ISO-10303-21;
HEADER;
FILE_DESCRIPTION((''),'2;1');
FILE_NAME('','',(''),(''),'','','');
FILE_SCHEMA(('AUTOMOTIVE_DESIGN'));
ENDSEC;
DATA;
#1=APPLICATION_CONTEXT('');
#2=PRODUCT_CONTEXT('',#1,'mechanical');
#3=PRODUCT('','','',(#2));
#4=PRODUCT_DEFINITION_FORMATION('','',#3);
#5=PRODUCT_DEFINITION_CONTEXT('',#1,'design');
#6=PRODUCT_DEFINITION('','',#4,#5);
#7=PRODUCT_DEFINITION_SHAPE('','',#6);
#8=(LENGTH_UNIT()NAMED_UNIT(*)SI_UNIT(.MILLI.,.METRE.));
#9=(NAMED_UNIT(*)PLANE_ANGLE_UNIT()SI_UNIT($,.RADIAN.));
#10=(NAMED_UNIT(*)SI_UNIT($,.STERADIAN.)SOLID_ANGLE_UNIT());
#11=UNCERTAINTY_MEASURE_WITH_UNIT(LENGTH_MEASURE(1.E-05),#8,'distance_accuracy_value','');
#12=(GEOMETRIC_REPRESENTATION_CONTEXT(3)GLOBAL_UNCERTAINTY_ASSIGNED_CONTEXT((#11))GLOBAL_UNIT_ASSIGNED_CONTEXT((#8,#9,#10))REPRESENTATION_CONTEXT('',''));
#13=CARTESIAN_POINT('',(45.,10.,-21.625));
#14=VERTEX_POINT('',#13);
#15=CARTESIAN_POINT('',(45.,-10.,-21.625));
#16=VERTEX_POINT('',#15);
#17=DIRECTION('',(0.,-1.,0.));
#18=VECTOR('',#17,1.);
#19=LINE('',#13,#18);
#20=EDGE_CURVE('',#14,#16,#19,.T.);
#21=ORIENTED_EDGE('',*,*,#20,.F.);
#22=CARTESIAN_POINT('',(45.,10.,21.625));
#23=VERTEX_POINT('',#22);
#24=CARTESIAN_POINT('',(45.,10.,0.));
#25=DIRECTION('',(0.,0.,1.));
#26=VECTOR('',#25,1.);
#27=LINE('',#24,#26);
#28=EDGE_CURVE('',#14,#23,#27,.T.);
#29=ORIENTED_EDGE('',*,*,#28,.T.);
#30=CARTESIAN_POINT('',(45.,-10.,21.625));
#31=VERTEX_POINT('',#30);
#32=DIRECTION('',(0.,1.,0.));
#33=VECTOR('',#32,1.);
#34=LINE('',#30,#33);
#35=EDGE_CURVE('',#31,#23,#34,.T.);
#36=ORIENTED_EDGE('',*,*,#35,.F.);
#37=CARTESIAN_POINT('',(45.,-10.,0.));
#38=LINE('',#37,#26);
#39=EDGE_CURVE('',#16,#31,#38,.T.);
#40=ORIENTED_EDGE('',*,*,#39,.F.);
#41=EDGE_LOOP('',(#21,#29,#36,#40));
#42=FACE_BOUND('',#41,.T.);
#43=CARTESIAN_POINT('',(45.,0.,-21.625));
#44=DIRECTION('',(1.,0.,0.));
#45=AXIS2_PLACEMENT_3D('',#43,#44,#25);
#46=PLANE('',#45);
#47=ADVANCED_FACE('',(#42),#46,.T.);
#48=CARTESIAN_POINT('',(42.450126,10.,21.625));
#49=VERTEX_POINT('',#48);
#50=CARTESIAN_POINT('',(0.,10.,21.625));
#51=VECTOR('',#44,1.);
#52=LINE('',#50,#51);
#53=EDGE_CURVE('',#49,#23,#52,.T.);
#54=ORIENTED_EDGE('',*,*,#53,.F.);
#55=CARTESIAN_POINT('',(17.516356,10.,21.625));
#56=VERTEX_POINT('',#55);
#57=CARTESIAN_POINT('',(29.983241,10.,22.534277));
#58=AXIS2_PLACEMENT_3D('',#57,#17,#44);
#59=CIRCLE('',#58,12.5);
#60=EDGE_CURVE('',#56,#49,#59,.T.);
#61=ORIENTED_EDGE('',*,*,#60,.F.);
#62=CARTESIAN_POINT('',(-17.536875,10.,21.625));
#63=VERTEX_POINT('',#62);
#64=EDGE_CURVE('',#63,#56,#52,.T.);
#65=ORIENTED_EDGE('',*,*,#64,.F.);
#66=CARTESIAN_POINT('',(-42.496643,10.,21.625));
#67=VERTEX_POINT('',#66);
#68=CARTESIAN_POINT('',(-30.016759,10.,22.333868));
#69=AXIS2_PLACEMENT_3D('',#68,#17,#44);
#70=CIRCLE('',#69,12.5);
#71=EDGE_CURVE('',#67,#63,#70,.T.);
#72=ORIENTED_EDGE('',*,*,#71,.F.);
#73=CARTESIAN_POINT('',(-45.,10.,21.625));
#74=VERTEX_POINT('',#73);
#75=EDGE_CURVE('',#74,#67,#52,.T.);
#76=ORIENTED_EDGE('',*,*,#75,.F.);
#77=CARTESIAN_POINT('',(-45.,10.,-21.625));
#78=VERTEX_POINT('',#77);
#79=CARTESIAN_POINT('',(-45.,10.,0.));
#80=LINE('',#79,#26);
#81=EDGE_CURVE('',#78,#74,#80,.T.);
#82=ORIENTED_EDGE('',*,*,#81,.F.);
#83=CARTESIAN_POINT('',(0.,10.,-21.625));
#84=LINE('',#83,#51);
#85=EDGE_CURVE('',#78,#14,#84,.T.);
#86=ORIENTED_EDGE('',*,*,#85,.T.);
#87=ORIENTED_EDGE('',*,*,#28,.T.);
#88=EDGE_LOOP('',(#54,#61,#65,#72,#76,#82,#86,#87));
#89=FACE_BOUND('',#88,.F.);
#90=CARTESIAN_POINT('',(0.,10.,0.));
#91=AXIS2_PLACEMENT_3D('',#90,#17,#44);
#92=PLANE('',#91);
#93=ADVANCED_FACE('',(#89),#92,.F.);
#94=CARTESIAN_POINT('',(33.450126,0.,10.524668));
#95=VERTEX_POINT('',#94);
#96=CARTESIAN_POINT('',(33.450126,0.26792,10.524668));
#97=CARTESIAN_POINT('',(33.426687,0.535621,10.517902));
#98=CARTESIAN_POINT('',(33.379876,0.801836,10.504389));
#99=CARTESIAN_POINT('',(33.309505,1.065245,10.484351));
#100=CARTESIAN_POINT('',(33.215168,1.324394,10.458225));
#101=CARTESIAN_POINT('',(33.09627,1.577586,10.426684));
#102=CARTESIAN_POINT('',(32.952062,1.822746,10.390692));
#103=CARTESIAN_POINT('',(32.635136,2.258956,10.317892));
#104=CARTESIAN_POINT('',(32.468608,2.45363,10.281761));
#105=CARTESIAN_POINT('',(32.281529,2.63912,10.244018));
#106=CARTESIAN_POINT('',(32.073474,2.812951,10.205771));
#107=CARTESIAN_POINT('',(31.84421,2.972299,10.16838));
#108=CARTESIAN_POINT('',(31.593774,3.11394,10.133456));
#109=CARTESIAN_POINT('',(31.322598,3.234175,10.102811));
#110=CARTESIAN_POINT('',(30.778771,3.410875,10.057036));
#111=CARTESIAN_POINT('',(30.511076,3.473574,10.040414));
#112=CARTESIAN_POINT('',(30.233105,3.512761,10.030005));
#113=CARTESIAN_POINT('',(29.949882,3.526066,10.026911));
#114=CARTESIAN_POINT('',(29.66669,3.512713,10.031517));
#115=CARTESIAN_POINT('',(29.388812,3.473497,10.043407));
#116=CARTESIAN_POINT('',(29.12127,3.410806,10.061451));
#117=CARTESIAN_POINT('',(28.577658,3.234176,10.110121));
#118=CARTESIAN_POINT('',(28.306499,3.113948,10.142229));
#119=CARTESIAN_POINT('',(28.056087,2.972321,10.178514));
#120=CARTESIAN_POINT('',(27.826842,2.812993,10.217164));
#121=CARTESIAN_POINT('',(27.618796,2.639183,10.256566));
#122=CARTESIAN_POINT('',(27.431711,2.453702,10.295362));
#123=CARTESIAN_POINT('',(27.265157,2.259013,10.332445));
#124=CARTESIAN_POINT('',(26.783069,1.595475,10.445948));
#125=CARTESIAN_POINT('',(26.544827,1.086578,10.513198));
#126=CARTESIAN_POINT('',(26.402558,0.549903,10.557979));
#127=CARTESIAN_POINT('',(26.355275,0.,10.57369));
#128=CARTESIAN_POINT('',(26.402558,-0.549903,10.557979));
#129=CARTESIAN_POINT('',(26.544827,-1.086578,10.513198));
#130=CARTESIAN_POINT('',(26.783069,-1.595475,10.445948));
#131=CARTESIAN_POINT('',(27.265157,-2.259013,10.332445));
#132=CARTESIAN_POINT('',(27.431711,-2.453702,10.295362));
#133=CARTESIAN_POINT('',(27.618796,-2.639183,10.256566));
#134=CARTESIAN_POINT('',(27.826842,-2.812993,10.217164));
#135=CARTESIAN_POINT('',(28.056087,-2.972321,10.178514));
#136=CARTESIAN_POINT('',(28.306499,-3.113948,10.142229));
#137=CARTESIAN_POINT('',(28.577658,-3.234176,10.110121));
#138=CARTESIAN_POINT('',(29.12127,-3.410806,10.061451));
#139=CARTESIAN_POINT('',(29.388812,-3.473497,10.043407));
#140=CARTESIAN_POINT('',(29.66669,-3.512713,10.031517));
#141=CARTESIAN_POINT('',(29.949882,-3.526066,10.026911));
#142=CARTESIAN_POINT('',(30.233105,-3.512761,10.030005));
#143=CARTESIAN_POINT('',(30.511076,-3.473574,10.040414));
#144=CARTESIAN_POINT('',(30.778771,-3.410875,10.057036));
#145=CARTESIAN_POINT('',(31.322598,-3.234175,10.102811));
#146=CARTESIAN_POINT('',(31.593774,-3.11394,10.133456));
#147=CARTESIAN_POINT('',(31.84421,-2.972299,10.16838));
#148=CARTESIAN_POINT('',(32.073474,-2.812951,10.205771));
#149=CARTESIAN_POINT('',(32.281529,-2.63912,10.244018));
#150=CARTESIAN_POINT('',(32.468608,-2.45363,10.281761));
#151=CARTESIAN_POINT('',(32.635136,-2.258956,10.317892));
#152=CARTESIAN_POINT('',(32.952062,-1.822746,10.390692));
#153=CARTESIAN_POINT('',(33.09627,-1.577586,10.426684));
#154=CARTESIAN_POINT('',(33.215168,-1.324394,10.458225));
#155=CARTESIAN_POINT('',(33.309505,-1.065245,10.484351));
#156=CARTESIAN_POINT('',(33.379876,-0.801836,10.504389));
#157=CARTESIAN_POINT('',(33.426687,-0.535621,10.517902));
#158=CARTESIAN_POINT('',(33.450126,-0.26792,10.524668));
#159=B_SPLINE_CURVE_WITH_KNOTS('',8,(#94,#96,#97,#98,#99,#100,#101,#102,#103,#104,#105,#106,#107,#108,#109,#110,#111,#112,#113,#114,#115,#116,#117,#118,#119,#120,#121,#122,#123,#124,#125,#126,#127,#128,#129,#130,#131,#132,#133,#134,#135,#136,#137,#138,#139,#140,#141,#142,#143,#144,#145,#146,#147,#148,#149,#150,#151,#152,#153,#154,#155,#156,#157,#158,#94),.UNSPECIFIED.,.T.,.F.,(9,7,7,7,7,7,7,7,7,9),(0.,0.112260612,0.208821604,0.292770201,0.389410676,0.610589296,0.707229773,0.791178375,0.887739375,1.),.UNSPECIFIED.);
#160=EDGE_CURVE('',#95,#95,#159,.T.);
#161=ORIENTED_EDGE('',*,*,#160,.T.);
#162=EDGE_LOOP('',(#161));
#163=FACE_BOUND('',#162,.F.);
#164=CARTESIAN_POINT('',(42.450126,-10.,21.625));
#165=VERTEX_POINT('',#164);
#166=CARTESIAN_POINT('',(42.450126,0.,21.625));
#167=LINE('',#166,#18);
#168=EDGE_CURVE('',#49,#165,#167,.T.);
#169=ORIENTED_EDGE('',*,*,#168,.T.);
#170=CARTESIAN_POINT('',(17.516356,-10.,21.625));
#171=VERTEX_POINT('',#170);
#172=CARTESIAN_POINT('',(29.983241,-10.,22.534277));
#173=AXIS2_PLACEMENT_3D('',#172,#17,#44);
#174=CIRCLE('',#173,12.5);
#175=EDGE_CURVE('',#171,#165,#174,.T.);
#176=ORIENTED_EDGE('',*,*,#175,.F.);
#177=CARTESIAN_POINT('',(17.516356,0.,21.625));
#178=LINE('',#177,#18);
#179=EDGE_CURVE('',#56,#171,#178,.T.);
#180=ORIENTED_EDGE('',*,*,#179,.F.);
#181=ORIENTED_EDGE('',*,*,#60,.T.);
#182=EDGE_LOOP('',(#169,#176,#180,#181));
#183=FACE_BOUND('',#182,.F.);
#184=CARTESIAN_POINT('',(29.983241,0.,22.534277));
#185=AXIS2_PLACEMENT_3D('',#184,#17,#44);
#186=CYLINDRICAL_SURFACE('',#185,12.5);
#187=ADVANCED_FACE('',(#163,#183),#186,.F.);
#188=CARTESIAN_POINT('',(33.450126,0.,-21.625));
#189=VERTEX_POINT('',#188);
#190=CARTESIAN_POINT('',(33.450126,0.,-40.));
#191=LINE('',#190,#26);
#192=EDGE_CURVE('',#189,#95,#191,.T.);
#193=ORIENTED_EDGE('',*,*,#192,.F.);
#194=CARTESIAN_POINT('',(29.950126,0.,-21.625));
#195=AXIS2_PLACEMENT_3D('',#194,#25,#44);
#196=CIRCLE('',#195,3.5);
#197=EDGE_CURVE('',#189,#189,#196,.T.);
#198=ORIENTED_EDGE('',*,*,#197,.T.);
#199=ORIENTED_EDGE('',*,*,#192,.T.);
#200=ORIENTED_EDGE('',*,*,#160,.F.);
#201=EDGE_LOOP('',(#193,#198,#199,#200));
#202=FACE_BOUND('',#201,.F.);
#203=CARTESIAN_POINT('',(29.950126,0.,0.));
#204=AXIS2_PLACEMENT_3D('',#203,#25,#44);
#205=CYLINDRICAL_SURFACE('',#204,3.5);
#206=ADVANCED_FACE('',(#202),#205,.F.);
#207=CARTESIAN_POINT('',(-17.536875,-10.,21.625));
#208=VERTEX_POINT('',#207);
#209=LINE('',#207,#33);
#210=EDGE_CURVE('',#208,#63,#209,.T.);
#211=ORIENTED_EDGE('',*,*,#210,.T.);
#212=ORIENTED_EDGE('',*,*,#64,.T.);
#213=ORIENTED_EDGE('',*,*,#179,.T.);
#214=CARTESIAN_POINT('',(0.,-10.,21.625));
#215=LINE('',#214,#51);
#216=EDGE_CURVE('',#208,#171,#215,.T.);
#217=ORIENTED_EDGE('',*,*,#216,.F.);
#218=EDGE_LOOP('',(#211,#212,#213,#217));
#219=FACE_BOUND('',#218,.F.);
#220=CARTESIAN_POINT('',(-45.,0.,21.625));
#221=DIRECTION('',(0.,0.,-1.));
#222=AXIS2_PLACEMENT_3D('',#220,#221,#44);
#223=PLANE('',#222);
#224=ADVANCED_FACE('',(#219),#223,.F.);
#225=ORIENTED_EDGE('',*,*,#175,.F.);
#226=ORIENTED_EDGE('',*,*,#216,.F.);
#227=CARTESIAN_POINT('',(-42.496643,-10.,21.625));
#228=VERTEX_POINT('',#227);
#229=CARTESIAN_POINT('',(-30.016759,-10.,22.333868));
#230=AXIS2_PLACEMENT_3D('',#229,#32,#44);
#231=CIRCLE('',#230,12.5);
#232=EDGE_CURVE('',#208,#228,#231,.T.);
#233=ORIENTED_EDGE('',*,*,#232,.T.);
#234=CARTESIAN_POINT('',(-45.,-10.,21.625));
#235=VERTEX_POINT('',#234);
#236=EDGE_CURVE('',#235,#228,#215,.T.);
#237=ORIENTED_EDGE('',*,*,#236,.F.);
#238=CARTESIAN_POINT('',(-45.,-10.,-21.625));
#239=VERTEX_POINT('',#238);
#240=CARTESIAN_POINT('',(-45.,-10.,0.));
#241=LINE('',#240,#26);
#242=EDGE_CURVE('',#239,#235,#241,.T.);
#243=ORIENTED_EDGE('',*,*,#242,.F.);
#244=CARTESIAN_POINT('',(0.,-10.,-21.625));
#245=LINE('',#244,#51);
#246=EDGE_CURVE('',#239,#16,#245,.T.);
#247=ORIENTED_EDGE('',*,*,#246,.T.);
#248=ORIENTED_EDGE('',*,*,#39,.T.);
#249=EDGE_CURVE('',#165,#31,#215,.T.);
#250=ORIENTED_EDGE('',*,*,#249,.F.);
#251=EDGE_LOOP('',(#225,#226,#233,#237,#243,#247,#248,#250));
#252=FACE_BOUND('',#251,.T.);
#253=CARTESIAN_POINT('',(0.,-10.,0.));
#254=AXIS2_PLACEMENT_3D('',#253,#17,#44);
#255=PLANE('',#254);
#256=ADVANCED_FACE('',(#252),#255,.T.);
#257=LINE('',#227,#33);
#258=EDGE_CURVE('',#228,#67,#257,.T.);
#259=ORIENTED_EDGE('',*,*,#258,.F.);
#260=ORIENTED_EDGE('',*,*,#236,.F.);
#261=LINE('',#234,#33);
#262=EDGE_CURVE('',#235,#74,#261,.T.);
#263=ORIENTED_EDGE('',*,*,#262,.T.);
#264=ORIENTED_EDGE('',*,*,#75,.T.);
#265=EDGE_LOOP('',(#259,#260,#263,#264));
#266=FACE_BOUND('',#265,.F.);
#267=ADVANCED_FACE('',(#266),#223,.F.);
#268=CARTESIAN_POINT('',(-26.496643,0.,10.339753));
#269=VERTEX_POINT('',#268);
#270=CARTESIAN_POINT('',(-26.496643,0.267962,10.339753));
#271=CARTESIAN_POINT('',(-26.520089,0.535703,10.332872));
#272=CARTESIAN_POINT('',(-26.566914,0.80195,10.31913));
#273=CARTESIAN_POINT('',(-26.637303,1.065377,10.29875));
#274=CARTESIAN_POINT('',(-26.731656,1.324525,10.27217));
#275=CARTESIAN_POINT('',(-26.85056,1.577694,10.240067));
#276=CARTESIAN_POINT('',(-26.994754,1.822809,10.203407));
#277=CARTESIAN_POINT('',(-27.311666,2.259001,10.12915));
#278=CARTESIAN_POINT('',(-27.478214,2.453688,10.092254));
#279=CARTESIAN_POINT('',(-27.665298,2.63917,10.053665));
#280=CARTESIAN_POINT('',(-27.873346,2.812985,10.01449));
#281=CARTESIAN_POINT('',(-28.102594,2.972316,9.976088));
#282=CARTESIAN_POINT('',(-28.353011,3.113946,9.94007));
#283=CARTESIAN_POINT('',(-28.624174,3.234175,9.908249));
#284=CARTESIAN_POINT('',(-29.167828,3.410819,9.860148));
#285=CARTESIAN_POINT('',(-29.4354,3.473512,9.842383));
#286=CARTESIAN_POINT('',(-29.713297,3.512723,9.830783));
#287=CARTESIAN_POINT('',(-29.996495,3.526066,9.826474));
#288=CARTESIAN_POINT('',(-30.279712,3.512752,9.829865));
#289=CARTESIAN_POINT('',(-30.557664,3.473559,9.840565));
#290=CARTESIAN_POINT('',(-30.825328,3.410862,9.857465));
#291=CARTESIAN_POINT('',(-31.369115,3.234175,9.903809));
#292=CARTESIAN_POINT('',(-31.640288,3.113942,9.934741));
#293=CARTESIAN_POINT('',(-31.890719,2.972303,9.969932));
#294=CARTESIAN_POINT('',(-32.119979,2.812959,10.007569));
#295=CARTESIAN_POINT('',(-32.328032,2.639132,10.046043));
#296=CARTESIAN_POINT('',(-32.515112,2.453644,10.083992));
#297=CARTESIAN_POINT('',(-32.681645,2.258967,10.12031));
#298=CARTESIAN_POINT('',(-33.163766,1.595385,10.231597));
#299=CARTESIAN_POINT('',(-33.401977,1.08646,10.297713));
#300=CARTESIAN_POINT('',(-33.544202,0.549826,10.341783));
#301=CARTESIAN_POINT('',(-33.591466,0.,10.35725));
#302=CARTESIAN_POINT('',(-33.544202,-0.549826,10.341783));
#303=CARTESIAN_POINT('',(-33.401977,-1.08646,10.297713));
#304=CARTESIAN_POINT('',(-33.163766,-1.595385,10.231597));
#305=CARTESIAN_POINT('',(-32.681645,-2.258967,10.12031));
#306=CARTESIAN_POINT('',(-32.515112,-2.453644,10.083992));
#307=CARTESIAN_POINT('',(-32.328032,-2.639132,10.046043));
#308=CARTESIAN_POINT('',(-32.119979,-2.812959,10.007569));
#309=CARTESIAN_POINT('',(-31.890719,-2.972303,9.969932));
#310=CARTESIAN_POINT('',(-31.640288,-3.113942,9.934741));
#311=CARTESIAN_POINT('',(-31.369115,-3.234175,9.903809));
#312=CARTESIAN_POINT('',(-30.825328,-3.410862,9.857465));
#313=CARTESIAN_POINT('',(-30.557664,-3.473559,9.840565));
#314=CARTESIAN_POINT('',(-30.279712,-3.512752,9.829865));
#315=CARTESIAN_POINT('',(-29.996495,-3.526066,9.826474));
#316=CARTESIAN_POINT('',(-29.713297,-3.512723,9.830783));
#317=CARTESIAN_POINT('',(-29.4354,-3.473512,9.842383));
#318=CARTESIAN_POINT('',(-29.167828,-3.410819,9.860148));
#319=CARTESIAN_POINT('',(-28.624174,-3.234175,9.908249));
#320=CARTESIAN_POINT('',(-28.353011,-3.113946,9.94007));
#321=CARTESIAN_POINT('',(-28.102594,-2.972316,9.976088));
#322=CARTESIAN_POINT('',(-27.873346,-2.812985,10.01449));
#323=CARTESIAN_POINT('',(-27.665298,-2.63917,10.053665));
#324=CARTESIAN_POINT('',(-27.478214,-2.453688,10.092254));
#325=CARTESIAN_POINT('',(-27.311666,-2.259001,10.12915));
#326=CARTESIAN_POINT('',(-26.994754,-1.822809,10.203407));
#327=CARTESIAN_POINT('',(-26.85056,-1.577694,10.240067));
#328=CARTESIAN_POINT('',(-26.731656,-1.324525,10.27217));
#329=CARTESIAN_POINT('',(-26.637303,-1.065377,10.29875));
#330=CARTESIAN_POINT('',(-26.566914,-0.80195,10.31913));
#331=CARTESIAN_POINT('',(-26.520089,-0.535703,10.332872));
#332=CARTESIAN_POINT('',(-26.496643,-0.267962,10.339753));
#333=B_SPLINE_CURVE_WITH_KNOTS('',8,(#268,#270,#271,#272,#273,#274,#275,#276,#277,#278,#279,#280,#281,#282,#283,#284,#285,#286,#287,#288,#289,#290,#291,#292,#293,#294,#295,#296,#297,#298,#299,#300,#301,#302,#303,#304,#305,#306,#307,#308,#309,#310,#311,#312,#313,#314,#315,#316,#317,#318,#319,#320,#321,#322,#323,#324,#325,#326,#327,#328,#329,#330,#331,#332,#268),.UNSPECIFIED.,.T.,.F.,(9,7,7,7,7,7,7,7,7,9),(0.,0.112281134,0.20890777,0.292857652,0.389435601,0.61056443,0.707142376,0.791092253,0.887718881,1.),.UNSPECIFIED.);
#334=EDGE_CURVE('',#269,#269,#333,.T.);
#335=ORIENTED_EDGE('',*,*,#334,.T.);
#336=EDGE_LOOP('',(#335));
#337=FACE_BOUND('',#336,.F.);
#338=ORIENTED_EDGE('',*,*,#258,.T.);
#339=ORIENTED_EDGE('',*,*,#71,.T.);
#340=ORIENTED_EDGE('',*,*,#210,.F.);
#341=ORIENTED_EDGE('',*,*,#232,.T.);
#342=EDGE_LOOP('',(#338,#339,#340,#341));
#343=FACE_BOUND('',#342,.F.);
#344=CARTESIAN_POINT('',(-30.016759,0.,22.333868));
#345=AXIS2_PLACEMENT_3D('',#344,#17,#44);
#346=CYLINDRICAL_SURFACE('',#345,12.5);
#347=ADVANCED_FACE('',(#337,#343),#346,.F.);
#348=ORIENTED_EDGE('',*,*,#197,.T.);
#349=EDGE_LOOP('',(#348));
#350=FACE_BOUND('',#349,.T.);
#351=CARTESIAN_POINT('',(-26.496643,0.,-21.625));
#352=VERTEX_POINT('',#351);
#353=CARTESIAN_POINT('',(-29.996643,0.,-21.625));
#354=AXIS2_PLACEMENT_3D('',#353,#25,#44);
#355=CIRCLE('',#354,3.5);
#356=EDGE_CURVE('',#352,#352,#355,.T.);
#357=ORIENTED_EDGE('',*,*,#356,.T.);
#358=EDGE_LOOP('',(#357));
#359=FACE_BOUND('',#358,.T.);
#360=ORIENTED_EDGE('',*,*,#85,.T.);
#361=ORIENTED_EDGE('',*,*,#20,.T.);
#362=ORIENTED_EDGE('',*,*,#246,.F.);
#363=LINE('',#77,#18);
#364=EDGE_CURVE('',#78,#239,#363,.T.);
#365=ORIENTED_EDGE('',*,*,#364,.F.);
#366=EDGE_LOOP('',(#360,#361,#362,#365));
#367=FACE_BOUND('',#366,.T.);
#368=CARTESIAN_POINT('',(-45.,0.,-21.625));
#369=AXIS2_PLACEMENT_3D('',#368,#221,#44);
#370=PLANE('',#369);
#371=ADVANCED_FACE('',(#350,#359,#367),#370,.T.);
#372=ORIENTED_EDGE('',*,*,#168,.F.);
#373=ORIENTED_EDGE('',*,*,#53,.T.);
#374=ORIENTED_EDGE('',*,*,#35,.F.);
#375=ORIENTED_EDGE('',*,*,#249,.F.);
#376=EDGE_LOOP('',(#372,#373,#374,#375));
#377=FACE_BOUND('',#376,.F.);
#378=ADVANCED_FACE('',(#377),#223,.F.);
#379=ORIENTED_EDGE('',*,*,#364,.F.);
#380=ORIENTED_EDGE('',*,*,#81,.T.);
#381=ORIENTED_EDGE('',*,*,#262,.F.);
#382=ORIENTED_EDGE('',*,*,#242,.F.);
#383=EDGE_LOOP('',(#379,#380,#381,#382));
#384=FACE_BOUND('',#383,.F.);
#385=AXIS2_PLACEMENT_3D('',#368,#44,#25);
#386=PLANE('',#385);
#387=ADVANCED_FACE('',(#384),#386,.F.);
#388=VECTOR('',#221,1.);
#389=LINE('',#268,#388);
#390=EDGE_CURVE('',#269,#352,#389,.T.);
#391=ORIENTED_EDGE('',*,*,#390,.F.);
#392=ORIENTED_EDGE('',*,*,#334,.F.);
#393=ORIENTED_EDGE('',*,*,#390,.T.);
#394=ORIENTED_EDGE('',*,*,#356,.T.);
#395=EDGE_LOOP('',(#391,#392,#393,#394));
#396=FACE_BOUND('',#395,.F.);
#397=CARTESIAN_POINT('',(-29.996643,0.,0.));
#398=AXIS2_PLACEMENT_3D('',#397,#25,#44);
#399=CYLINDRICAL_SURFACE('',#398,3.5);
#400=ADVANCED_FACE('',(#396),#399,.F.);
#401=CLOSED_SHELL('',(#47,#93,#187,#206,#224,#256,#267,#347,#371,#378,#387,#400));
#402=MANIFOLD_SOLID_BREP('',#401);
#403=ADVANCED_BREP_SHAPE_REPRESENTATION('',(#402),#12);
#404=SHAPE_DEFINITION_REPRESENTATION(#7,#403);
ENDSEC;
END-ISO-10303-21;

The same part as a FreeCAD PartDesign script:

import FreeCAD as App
import Part
import Sketcher

V = App.Vector

doc = App.newDocument("Part")
body = doc.addObject("PartDesign::Body", "Body")

# Sketch on XZ plane
sketch1 = body.newObject("Sketcher::SketchObject", "Sketch")
sketch1.AttachmentSupport = (doc.getObject("XZ_Plane"), [""])
sketch1.MapMode = "FlatFace"
sketch1.addGeometry([
    Part.LineSegment(V(-45, 21.625, 0), V(-45, -21.625, 0)),
    Part.LineSegment(V(-45, -21.625, 0), V(45, -21.625, 0)),
    Part.LineSegment(V(45, -21.625, 0), V(45, 21.625, 0)),
    Part.LineSegment(V(45, 21.625, 0), V(-45, 21.625, 0)),
], False)
sketch1.addConstraint([
    Sketcher.Constraint("Coincident", 0, 2, 1, 1),
    Sketcher.Constraint("Coincident", 1, 2, 2, 1),
    Sketcher.Constraint("Coincident", 2, 2, 3, 1),
    Sketcher.Constraint("Coincident", 3, 2, 0, 1),
    Sketcher.Constraint("Vertical", 0),
    Sketcher.Constraint("Horizontal", 1),
    Sketcher.Constraint("Vertical", 2),
    Sketcher.Constraint("Horizontal", 3),
    Sketcher.Constraint("Symmetric", 0, 2, 2, 2, -1, 1),
    Sketcher.Constraint("DistanceX", 1, 1, 1, 2, 90.0),
    Sketcher.Constraint("DistanceY", 0, 2, 0, 1, 43.25),
])
pad1 = body.newObject("PartDesign::Pad", "Pad")
pad1.Profile = sketch1
pad1.Length = 20
pad1.Midplane = True

# Sketch on XZ plane
sketch2 = body.newObject("Sketcher::SketchObject", "Sketch001")
sketch2.AttachmentSupport = (doc.getObject("XZ_Plane"), [""])
sketch2.MapMode = "FlatFace"
sketch2.addGeometry([
    Part.Circle(V(-30.016759, 22.333868, 0), V(0, 0, 1), 12.5),
    Part.Circle(V(29.983241, 22.534277, 0), V(0, 0, 1), 12.5),
], False)
sketch2.addConstraint([
    Sketcher.Constraint("Equal", 0, 1),
    Sketcher.Constraint("Diameter", 0, 25.0),
    Sketcher.Constraint("DistanceX", 0, 3, 1, 3, 60.0),
    Sketcher.Constraint("DistanceX", 0, 3, -1, 1, 30.016759),
    Sketcher.Constraint("DistanceY", 0, 3, 1, 3, 0.200409),
    Sketcher.Constraint("DistanceY", -1, 1, 0, 3, 22.333868),
])
pocket1 = body.newObject("PartDesign::Pocket", "Pocket")
pocket1.Profile = sketch2
pocket1.Length = 30
pocket1.Midplane = True

# Sketch on XY plane
sketch3 = body.newObject("Sketcher::SketchObject", "Sketch002")
sketch3.AttachmentSupport = (doc.getObject("XY_Plane"), [""])
sketch3.MapMode = "FlatFace"
sketch3.addGeometry([
    Part.Circle(V(-29.996643, 0, 0), V(0, 0, 1), 3.5),
    Part.Circle(V(29.950126, 0, 0), V(0, 0, 1), 3.5),
], False)
sketch3.addConstraint([
    Sketcher.Constraint("Equal", 0, 1),
    Sketcher.Constraint("PointOnObject", 0, 3, -1),
    Sketcher.Constraint("PointOnObject", 1, 3, -1),
    Sketcher.Constraint("Diameter", 0, 7.0),
    Sketcher.Constraint("DistanceX", 0, 3, 1, 3, 59.946769),
    Sketcher.Constraint("DistanceX", 0, 3, -1, 1, 29.996643),
])
pocket2 = body.newObject("PartDesign::Pocket", "Pocket001")
pocket2.Profile = sketch3
pocket2.Length = 80
pocket2.Midplane = True

doc.recompute()
